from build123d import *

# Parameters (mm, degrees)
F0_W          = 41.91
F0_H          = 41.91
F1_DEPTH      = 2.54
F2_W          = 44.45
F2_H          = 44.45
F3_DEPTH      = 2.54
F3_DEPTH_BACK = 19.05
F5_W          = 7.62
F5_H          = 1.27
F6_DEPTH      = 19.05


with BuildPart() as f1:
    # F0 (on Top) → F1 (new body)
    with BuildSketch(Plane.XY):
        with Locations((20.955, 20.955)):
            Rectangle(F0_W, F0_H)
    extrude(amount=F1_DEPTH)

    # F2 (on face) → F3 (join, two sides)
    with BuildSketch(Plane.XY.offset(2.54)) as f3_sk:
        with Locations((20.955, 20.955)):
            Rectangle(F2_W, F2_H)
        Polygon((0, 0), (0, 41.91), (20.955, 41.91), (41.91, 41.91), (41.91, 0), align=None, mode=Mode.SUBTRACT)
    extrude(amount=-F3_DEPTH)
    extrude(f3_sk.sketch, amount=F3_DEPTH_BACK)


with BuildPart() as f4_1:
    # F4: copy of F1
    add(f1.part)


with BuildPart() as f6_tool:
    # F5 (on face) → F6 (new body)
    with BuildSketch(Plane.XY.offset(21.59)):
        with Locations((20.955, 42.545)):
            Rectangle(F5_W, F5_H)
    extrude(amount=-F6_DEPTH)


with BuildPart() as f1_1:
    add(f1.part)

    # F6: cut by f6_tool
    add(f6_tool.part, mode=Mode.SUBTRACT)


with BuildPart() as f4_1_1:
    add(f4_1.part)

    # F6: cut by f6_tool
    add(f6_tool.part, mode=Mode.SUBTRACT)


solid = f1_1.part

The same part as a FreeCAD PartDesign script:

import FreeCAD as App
import Part
import Sketcher

V = App.Vector
Q = App.Units.Quantity

doc = App.newDocument("Part")
params = doc.addObject("Spreadsheet::Sheet", "Params")
for row, (alias, value) in enumerate([
    ("sketch1_width", "1.65 in"),
    ("pad1_length", "0.1 in"),
    ("sketch2_width", "1.75 in"),
    ("sketch2_width2", "1.65 in"),
    ("pad2_length", "0.1 in"),
    ("pad2_length2", "0.75 in"),
    ("sketch3_width", "0.3 in"),
    ("sketch3_height", "0.05 in"),
    ("pad3_length", "0.75 in"),
], start=1):
    params.set(f"A{row}", alias)
    params.set(f"B{row}", "=" + value)
    params.setAlias(f"B{row}", alias)

body = doc.addObject("PartDesign::Body", "Body")

sketch1 = doc.addObject("Sketcher::SketchObject", "Sketch")
body.addObject(sketch1)
sketch1.AttachmentSupport = (doc.XY_Plane, [""])
sketch1.MapMode = "FlatFace"
sketch1.addGeometry([
    Part.LineSegment(V(0, 42, 0), V(0, 0, 0)),
    Part.LineSegment(V(0, 0, 0), V(42, 0, 0)),
    Part.LineSegment(V(42, 0, 0), V(42, 42, 0)),
    Part.LineSegment(V(42, 42, 0), V(0, 42, 0)),
], False)
sketch1.addConstraint([
    Sketcher.Constraint("Coincident", 0, 2, 1, 1),
    Sketcher.Constraint("Coincident", 1, 2, 2, 1),
    Sketcher.Constraint("Coincident", 2, 2, 3, 1),
    Sketcher.Constraint("Coincident", 3, 2, 0, 1),
    Sketcher.Constraint("Vertical", 0),
    Sketcher.Constraint("Horizontal", 1),
    Sketcher.Constraint("Vertical", 2),
    Sketcher.Constraint("Horizontal", 3),
    Sketcher.Constraint("Coincident", 0, 2, -1, 1),
    Sketcher.Constraint("Equal", 3, 0),
    Sketcher.Constraint("DistanceX", 1, 1, 1, 2, Q("1.65 in")),
])
sketch1.setExpression("Constraints[10]", "Params.sketch1_width")
pad1 = doc.addObject("PartDesign::Pad", "Pad")
body.addObject(pad1)
pad1.Profile = sketch1
pad1.setExpression("Length", "Params.pad1_length")

sketch2 = doc.addObject("Sketcher::SketchObject", "Sketch001")
body.addObject(sketch2)
sketch2.AttachmentSupport = (doc.XY_Plane, [""])
sketch2.MapMode = "FlatFace"
sketch2.AttachmentOffset = App.Placement(V(0, 0, 0.1 * 25.4), App.Rotation())
sketch2.addGeometry([
    Part.LineSegment(V(-1, 43, 0), V(-1, -1, 0)),
    Part.LineSegment(V(-1, -1, 0), V(43, -1, 0)),
    Part.LineSegment(V(43, -1, 0), V(43, 43, 0)),
    Part.LineSegment(V(43, 43, 0), V(-1, 43, 0)),
    Part.LineSegment(V(42, 0, 0), V(0, 0, 0)),
    Part.LineSegment(V(0, 0, 0), V(0, 42, 0)),
    Part.LineSegment(V(0, 42, 0), V(42, 42, 0)),
    Part.LineSegment(V(42, 42, 0), V(42, 0, 0)),
], False)
sketch2.addConstraint([
    Sketcher.Constraint("Coincident", 0, 2, 1, 1),
    Sketcher.Constraint("Coincident", 1, 2, 2, 1),
    Sketcher.Constraint("Coincident", 2, 2, 3, 1),
    Sketcher.Constraint("Coincident", 3, 2, 0, 1),
    Sketcher.Constraint("Coincident", 4, 2, 5, 1),
    Sketcher.Constraint("Coincident", 5, 2, 6, 1),
    Sketcher.Constraint("Coincident", 6, 2, 7, 1),
    Sketcher.Constraint("Coincident", 7, 2, 4, 1),
    Sketcher.Constraint("Vertical", 0),
    Sketcher.Constraint("Horizontal", 1),
    Sketcher.Constraint("Vertical", 2),
    Sketcher.Constraint("Horizontal", 3),
    Sketcher.Constraint("Horizontal", 4),
    Sketcher.Constraint("Vertical", 5),
    Sketcher.Constraint("Horizontal", 6),
    Sketcher.Constraint("Vertical", 7),
    Sketcher.Constraint("Coincident", 4, 2, -1, 1),
    Sketcher.Constraint("Equal", 3, 0),
    Sketcher.Constraint("Equal", 6, 5),
    Sketcher.Constraint("DistanceX", 1, 1, 1, 2, Q("1.75 in")),
    Sketcher.Constraint("DistanceX", 4, 2, 4, 1, Q("1.65 in")),
    Sketcher.Constraint("DistanceX", -1, 1, 1, 2, Q("1.7 in")),
    Sketcher.Constraint("DistanceY", -1, 1, 2, 2, Q("1.7 in")),
])
sketch2.setExpression("Constraints[19]", "Params.sketch2_width")
sketch2.setExpression("Constraints[20]", "Params.sketch2_width2")
pad2 = doc.addObject("PartDesign::Pad", "Pad001")
body.addObject(pad2)
pad2.Profile = sketch2
pad2.Type = "TwoLengths"
pad2.setExpression("Length", "Params.pad2_length")
pad2.setExpression("Length2", "Params.pad2_length2")
pad2.Reversed = True
body2 = doc.addObject("PartDesign::Body", "Body001")
doc.recompute()

body2.BaseFeature = body
doc.recompute()
body3 = doc.addObject("PartDesign::Body", "Body002")

sketch3 = doc.addObject("Sketcher::SketchObject", "Sketch002")
body3.addObject(sketch3)
sketch3.AttachmentSupport = (doc.getObject("XY_Plane002"), [""])
sketch3.MapMode = "FlatFace"
sketch3.AttachmentOffset = App.Placement(V(0, 0, 0.85 * 25.4), App.Rotation())
sketch3.addGeometry([
    Part.LineSegment(V(17.1, 43.2, 0), V(17.1, 41.9, 0)),
    Part.LineSegment(V(17.1, 41.9, 0), V(24.8, 41.9, 0)),
    Part.LineSegment(V(24.8, 41.9, 0), V(24.8, 43.2, 0)),
    Part.LineSegment(V(24.8, 43.2, 0), V(17.1, 43.2, 0)),
], False)
sketch3.addConstraint([
    Sketcher.Constraint("Coincident", 0, 2, 1, 1),
    Sketcher.Constraint("Coincident", 1, 2, 2, 1),
    Sketcher.Constraint("Coincident", 2, 2, 3, 1),
    Sketcher.Constraint("Coincident", 3, 2, 0, 1),
    Sketcher.Constraint("Vertical", 0),
    Sketcher.Constraint("Horizontal", 1),
    Sketcher.Constraint("Vertical", 2),
    Sketcher.Constraint("Horizontal", 3),
    Sketcher.Constraint("DistanceX", 1, 1, 1, 2, Q("0.3 in")),
    Sketcher.Constraint("DistanceY", 0, 2, 0, 1, Q("0.05 in")),
    Sketcher.Constraint("DistanceY", -1, 1, 2, 2, Q("1.7 in")),
    Sketcher.Constraint("DistanceX", -1, 1, 0, 2, Q("0.675 in")),
])
sketch3.setExpression("Constraints[8]", "Params.sketch3_width")
sketch3.setExpression("Constraints[9]", "Params.sketch3_height")
pad3 = doc.addObject("PartDesign::Pad", "Pad002")
body3.addObject(pad3)
pad3.Profile = sketch3
pad3.setExpression("Length", "Params.pad3_length")
pad3.Reversed = True
doc.recompute()

body4 = doc.addObject("PartDesign::Body", "Body003")
body4.BaseFeature = body3
boolean = doc.addObject("PartDesign::Boolean", "Boolean")
body.addObject(boolean)
boolean.Type = "Cut"
boolean.addObjects([body4])
doc.recompute()

boolean2 = doc.addObject("PartDesign::Boolean", "Boolean001")
body2.addObject(boolean2)
boolean2.Type = "Cut"
boolean2.addObjects([body3])
body.Visibility = False

doc.recompute()
